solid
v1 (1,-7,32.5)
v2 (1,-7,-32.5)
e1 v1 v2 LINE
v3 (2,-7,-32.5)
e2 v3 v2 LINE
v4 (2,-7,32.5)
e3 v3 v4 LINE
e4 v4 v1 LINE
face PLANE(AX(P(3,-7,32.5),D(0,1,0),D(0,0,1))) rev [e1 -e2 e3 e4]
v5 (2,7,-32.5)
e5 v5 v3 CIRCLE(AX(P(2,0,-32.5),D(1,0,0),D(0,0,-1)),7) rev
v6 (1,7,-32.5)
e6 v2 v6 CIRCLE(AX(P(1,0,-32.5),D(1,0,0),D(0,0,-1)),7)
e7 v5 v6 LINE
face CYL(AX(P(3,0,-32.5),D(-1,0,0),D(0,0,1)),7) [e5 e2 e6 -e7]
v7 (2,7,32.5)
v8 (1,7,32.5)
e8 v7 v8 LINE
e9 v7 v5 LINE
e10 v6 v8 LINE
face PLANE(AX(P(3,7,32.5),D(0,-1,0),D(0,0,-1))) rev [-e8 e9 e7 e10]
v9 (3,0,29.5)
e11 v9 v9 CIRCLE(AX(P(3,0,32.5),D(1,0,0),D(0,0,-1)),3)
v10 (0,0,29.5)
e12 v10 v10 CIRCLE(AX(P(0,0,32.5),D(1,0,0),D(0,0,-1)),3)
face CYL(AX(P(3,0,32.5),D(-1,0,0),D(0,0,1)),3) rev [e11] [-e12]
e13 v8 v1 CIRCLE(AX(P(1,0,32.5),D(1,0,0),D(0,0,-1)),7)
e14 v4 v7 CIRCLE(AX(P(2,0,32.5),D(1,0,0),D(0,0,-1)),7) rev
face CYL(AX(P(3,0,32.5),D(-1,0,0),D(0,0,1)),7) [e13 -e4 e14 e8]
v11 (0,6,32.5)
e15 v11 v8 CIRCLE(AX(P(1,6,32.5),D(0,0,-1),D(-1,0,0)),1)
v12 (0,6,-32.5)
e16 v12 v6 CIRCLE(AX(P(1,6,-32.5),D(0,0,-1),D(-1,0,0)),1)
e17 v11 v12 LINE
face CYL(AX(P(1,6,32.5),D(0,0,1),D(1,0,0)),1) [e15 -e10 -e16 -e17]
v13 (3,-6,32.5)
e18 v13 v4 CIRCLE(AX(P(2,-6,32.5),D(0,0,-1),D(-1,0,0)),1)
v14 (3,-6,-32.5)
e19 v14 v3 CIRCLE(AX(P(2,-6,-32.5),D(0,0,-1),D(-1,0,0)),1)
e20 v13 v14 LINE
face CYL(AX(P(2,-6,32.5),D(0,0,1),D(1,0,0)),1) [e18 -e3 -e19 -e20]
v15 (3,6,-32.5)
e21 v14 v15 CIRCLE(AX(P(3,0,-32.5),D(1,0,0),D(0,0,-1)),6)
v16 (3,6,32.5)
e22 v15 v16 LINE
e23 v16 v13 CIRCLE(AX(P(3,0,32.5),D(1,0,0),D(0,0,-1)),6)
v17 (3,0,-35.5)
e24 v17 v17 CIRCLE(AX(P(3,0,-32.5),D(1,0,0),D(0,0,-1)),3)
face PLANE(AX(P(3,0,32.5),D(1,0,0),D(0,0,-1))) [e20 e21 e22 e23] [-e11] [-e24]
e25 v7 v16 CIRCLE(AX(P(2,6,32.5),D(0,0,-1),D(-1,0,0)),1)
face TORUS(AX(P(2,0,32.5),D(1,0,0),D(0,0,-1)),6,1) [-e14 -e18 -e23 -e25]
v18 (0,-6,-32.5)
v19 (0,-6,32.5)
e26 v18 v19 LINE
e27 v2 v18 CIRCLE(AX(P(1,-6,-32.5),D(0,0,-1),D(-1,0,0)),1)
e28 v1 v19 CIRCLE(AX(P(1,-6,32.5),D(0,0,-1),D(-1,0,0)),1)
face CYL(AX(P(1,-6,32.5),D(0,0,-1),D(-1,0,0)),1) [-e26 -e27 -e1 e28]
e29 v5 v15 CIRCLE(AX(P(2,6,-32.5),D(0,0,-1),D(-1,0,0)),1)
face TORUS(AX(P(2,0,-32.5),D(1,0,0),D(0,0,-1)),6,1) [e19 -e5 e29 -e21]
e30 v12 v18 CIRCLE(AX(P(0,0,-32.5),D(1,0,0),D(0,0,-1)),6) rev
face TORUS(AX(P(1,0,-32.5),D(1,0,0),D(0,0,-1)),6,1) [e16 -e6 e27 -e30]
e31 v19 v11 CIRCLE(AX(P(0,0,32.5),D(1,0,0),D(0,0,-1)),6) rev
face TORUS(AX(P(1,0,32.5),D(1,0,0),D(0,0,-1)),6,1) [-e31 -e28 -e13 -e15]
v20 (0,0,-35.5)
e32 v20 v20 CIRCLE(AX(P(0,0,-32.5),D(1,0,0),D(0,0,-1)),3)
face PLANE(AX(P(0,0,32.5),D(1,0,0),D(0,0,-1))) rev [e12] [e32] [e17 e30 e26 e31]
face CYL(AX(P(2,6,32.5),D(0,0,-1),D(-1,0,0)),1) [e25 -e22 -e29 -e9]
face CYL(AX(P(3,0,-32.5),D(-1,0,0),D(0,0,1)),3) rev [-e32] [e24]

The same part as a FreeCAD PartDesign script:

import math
import FreeCAD as App
import Part
import Sketcher
Q = App.Units.Quantity


def edges_at(feature, points):
    """Names of the edges that pass closest to the given points."""
    edges = feature.Shape.Edges
    near = lambda p: min(range(len(edges)), key=lambda i: edges[i].distToShape(Part.Vertex(*p))[0])
    return sorted({f"Edge{near(p) + 1}" for p in points})

doc = App.newDocument("Part")
params = doc.addObject("Spreadsheet::Sheet", "Params")
for row, (alias, value) in enumerate([
    ("sketch1_diameter", "6 mm"),
    ("sketch1_radius", "7 mm"),
    ("sketch1_height", "65 mm"),
    ("pad1_length", "3 mm"),
    ("fillet_radius", "1 mm"),
], start=1):
    params.set(f"A{row}", alias)
    params.set(f"B{row}", "=" + value)
    params.setAlias(f"B{row}", alias)

body = doc.addObject("PartDesign::Body", "Body")

sketch1 = body.newObject("Sketcher::SketchObject", "Sketch")
sketch1.AttachmentSupport = (doc.getObject("YZ_Plane"), [""])
sketch1.MapMode = "FlatFace"
sketch1.addGeometry([
    Part.LineSegment(App.Vector(7, -32.5, 0), App.Vector(7, 32.5, 0)),
    Part.ArcOfCircle(Part.Circle(App.Vector(0, 32.5, 0), App.Vector(0, 0, 1), 7), math.radians(0), math.radians(180)),
    Part.LineSegment(App.Vector(-7, 32.5, 0), App.Vector(-7, -32.5, 0)),
    Part.ArcOfCircle(Part.Circle(App.Vector(0, -32.5, 0), App.Vector(0, 0, 1), 7), math.radians(180), math.radians(360)),
    Part.Circle(App.Vector(0, -32.5, 0), App.Vector(0, 0, 1), 3),
    Part.Circle(App.Vector(0, 32.5, 0), App.Vector(0, 0, 1), 3),
], False)
sketch1.addConstraint([
    Sketcher.Constraint("Tangent", 0, 2, 1, 1),
    Sketcher.Constraint("Tangent", 1, 2, 2, 1),
    Sketcher.Constraint("Tangent", 2, 2, 3, 1),
    Sketcher.Constraint("Tangent", 3, 2, 0, 1),
    Sketcher.Constraint("Vertical", 0),
    Sketcher.Constraint("Vertical", 2),
    Sketcher.Constraint("Coincident", 4, 3, 3, 3),
    Sketcher.Constraint("Coincident", 5, 3, 1, 3),
    Sketcher.Constraint("Equal", 4, 5),
    Sketcher.Constraint("Symmetric", 1, 3, 3, 3, -1, 1),
    Sketcher.Constraint("Diameter", 4, Q("6 mm")),
    Sketcher.Constraint("Radius", 1, Q("7 mm")),
    Sketcher.Constraint("DistanceY", 0, 1, 0, 2, Q("65 mm")),
])
sketch1.setExpression("Constraints[10]", "Params.sketch1_diameter")
sketch1.setExpression("Constraints[11]", "Params.sketch1_radius")
sketch1.setExpression("Constraints[12]", "Params.sketch1_height")
pad1 = body.newObject("PartDesign::Pad", "Pad")
pad1.Profile = sketch1
pad1.setExpression("Length", "Params.pad1_length")
doc.recompute()

fillet = body.newObject("PartDesign::Fillet", "Fillet")
fillet.Base = (pad1, edges_at(pad1, [
    (3, 0, -39.5),
    (3, 7, 0),
    (3, 0, 39.5),
    (0, 7, 0),
    (0, 0, -39.5),
    (0, -7, 0),
    (0, 0, 39.5),
    (3, -7, 0),
]))
fillet.setExpression("Radius", "Params.fillet_radius")

doc.recompute()
